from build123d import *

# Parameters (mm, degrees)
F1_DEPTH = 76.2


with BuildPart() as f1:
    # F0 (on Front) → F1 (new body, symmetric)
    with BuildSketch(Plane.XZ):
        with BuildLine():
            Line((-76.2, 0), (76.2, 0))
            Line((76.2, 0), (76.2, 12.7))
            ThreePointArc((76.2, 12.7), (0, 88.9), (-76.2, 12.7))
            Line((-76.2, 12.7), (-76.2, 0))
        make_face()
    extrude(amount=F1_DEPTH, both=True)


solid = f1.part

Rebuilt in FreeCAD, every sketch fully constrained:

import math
import FreeCAD as App
import Part
import Sketcher
Q = App.Units.Quantity

doc = App.newDocument("Part")
body = doc.addObject("PartDesign::Body", "Body")

sketch1 = body.newObject("Sketcher::SketchObject", "Sketch")
sketch1.AttachmentSupport = (doc.getObject("XZ_Plane"), [""])
sketch1.MapMode = "FlatFace"
sketch1.addGeometry(Part.LineSegment(App.Vector(-76.2, 0, 0), App.Vector(76.2, 0, 0)), False)
sketch1.addGeometry(Part.LineSegment(App.Vector(76.2, 0, 0), App.Vector(76.2, 12.7, 0)), False)
sketch1.addGeometry(Part.ArcOfCircle(Part.Circle(App.Vector(0, 12.7, 0), App.Vector(0, 0, 1), 76.2), math.radians(0), math.radians(180)), False)
sketch1.addGeometry(Part.LineSegment(App.Vector(-76.2, 12.7, 0), App.Vector(-76.2, 0, 0)), False)
sketch1.addConstraint(Sketcher.Constraint("Coincident", 0, 2, 1, 1))
sketch1.addConstraint(Sketcher.Constraint("Tangent", 1, 2, 2, 1))
sketch1.addConstraint(Sketcher.Constraint("Tangent", 2, 2, 3, 1))
sketch1.addConstraint(Sketcher.Constraint("Coincident", 3, 2, 0, 1))
sketch1.addConstraint(Sketcher.Constraint("Horizontal", 0))
sketch1.addConstraint(Sketcher.Constraint("Vertical", 1))
sketch1.addConstraint(Sketcher.Constraint("Vertical", 3))
sketch1.addConstraint(Sketcher.Constraint("Symmetric", 0, 2, 3, 2, -1, 1))
sketch1.addConstraint(Sketcher.Constraint("Radius", 2, Q("3 in")))
sketch1.addConstraint(Sketcher.Constraint("DistanceY", 1, 1, 1, 2, Q("0.5 in")))
pad1 = body.newObject("PartDesign::Pad", "Pad")
pad1.Profile = sketch1
pad1.Length = Q("6 in")
pad1.Midplane = True

doc.recompute()
